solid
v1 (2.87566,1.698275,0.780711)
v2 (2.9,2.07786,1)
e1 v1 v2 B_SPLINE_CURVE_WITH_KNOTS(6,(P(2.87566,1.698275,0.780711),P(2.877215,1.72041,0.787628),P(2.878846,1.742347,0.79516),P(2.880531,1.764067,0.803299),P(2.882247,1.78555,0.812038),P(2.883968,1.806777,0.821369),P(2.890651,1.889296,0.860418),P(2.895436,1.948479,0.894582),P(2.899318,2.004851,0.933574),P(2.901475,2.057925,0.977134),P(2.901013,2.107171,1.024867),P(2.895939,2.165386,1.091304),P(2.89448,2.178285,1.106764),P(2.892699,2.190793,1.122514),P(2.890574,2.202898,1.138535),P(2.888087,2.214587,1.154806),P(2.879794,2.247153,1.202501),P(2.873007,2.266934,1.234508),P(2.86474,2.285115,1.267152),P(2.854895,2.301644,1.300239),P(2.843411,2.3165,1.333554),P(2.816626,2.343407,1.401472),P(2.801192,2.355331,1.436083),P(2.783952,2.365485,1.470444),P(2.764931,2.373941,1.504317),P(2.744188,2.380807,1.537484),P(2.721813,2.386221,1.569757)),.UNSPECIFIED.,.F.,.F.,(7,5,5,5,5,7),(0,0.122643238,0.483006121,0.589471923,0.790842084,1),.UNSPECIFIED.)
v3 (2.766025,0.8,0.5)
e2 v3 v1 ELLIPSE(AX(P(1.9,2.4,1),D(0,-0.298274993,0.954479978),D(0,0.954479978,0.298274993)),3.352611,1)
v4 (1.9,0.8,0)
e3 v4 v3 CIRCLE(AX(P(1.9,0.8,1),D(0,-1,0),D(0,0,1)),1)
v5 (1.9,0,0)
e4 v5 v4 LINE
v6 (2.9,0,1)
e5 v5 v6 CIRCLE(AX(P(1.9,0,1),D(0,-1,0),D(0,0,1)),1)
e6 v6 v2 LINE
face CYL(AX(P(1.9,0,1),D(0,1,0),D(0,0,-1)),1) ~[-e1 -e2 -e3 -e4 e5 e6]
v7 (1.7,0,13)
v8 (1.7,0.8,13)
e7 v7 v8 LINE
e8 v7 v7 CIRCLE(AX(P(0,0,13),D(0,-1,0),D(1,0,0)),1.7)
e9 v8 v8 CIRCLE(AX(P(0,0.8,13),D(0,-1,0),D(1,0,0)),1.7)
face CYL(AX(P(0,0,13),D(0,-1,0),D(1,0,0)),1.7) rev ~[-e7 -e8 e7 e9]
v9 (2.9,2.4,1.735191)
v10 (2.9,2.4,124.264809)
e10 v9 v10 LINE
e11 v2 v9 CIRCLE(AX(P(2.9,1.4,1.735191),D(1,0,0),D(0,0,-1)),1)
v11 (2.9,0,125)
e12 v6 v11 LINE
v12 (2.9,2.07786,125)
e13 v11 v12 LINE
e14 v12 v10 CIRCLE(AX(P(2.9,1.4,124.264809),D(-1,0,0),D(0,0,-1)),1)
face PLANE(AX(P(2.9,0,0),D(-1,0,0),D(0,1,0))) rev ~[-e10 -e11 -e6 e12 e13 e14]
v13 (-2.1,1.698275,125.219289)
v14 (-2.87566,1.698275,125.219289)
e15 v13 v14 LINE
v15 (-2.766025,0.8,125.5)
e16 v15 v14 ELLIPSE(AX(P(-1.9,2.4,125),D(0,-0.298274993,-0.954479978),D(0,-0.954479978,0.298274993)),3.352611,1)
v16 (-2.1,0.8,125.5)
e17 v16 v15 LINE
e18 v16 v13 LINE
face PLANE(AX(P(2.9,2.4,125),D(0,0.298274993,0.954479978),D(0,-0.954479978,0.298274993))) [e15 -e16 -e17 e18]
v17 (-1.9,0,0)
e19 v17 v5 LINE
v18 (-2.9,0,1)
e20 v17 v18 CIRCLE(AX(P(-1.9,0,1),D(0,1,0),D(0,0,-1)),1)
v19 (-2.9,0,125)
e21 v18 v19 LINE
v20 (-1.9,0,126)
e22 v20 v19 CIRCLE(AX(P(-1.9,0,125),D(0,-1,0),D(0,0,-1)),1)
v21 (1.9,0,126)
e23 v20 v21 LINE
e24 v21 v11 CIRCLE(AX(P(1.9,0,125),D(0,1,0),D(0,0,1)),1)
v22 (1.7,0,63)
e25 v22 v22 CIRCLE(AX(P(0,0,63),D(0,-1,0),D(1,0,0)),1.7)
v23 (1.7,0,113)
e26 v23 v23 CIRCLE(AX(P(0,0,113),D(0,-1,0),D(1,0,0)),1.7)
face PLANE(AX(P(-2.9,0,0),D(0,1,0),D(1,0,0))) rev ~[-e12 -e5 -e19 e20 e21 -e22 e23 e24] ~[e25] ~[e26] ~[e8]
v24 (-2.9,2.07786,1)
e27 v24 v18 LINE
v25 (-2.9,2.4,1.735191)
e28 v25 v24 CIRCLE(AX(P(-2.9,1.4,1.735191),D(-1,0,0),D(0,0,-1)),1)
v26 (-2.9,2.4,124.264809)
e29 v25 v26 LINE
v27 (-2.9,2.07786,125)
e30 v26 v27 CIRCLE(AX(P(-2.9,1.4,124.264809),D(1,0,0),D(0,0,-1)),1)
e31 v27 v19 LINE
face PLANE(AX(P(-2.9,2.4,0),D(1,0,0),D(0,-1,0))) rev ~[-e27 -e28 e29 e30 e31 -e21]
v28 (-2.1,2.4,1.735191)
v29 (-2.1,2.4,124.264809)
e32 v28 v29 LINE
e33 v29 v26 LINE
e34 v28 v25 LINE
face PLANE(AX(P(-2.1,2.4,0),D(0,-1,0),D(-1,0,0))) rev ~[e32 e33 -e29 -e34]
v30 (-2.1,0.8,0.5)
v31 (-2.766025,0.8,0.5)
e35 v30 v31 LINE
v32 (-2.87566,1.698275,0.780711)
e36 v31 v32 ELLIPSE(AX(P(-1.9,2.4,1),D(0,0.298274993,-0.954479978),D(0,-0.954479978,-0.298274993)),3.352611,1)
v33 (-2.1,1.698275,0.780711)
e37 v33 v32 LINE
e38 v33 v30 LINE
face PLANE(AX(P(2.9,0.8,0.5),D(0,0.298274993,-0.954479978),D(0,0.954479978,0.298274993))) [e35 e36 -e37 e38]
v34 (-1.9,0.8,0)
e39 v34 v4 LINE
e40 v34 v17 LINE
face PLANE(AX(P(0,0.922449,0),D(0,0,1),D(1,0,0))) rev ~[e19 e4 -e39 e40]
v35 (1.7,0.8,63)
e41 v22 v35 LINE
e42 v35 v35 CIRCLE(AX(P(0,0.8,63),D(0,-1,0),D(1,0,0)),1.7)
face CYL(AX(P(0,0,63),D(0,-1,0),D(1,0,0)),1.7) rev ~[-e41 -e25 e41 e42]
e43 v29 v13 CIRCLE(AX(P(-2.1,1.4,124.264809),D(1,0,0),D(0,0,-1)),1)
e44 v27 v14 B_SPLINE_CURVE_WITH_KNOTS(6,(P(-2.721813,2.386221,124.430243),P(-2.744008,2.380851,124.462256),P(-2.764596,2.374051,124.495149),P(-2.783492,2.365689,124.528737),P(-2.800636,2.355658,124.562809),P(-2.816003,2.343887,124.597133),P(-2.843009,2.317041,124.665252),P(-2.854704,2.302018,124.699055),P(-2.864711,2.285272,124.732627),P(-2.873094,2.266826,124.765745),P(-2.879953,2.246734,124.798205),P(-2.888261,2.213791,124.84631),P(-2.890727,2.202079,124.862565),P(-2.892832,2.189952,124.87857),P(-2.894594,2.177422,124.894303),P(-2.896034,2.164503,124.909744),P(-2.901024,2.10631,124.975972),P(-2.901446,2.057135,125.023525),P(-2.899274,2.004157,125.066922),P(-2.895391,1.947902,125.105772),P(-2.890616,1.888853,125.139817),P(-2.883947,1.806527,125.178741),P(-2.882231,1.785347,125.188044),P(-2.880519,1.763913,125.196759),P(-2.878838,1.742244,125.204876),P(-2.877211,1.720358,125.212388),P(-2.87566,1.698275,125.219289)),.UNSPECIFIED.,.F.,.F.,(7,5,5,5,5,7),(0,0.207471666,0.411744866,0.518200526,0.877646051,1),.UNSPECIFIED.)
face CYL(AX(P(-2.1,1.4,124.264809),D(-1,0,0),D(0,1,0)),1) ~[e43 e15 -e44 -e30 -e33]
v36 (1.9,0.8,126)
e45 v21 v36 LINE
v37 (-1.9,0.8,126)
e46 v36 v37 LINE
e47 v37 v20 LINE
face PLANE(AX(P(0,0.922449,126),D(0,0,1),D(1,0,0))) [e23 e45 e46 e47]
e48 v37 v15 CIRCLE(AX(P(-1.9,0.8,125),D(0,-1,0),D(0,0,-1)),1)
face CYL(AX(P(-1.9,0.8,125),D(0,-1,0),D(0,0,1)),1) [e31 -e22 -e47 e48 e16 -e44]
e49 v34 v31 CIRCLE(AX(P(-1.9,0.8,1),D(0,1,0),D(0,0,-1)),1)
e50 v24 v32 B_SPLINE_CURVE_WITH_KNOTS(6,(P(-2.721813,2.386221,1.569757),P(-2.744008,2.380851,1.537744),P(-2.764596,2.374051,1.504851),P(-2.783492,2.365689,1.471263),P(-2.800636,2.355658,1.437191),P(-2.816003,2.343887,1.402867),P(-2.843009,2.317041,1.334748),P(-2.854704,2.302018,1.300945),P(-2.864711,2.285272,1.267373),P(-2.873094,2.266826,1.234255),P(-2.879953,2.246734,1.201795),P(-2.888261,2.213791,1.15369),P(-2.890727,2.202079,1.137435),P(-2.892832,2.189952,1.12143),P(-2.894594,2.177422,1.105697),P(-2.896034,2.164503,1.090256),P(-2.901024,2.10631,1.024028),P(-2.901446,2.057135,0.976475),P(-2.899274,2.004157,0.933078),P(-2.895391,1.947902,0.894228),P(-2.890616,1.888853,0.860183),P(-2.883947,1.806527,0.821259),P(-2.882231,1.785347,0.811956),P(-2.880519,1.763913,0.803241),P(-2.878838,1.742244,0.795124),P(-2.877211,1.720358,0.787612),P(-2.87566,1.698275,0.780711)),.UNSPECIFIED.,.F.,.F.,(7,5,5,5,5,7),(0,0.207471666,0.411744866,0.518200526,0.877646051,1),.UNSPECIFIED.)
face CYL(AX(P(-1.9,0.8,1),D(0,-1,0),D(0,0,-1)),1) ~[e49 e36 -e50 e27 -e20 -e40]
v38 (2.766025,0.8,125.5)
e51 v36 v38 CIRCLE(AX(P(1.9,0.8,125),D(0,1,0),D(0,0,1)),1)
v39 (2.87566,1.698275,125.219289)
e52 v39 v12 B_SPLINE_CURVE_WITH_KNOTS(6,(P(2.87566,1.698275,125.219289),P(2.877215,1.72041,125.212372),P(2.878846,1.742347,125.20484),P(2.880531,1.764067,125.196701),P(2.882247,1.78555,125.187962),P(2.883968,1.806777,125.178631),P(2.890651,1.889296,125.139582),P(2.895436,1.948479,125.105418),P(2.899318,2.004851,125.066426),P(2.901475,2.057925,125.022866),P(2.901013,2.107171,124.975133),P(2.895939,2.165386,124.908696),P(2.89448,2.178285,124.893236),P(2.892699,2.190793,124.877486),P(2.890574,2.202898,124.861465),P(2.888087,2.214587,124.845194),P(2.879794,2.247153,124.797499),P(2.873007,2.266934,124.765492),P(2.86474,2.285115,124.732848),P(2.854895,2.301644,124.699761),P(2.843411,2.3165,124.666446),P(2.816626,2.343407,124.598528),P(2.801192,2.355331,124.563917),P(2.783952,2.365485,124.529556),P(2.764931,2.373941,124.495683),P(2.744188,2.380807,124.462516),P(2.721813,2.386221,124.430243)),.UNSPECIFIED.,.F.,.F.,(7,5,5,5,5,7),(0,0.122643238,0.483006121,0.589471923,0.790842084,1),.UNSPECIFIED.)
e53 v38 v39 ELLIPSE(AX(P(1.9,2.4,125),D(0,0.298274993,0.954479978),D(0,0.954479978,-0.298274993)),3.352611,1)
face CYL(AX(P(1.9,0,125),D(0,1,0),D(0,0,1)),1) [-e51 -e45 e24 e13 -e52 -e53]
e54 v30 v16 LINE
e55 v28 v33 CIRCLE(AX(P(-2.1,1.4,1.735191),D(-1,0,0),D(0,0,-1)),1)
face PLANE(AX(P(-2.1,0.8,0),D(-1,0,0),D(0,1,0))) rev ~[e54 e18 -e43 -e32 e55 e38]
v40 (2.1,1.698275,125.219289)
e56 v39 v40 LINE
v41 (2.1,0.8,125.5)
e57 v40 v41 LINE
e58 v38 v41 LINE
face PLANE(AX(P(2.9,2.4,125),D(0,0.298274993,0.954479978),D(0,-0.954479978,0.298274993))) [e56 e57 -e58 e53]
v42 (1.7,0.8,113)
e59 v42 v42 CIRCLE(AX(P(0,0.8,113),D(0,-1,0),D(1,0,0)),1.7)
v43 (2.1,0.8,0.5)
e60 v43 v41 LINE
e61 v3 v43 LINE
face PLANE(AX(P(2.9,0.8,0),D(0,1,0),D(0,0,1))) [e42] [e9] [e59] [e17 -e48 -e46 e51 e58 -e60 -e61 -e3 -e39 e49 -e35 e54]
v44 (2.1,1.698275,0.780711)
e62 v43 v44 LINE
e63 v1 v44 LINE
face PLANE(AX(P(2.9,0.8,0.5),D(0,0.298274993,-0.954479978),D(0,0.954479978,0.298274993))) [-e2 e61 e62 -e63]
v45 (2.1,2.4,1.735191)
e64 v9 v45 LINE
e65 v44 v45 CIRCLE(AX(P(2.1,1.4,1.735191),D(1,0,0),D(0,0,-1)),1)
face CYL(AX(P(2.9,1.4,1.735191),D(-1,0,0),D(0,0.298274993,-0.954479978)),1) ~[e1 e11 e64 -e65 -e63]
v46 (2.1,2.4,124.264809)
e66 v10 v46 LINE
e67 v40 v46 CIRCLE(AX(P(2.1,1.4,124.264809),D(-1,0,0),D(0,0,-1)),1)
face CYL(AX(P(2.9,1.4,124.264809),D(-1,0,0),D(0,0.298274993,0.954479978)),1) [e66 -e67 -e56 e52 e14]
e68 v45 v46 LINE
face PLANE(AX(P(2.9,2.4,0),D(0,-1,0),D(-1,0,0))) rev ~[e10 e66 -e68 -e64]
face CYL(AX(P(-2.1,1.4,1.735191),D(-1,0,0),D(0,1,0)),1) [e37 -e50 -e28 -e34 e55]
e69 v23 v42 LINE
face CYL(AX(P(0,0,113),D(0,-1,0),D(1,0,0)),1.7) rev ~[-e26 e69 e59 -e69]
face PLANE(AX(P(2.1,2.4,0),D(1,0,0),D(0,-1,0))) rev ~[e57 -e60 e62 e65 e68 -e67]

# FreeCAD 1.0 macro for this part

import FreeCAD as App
import Part
import Sketcher

V = App.Vector


def edges_at(feature, points):
    """Names of the edges that pass closest to the given points."""
    edges = feature.Shape.Edges
    near = lambda p: min(range(len(edges)), key=lambda i: edges[i].distToShape(Part.Vertex(*p))[0])
    return sorted({f"Edge{near(p) + 1}" for p in points})


def add_polygon(sketch, points):
    """Adds a closed chain of lines whose ends are joined by coincident constraints."""
    first, n = sketch.GeometryCount, len(points)
    for a, b in zip(points, points[1:] + points[:1]):
        sketch.addGeometry(Part.LineSegment(App.Vector(*a, 0), App.Vector(*b, 0)), False)
    for i in range(n):
        sketch.addConstraint(Sketcher.Constraint("Coincident", first + i, 2, first + (i + 1) % n, 1))

doc = App.newDocument("Part")
params = doc.addObject("Spreadsheet::Sheet", "Params")
for row, (alias, value) in enumerate([
    ("sketch1_width", "5.8 mm"),
    ("sketch1_width2", "0.8 mm"),
    ("sketch1_height", "2.4 mm"),
    ("sketch1_height2", "1.6 mm"),
    ("pad1_length", "126 mm"),
    ("sketch2_height", "1 mm"),
    ("sketch2_width", "1.6 mm"),
    ("sketch2_height2", "0.5 mm"),
    ("fillet_radius", "1 mm"),
    ("fillet2_radius", "1 mm"),
    ("sketch3_diameter", "3.4 mm"),
    ("pocket2_length", "5 mm"),
], start=1):
    params.set(f"A{row}", alias)
    params.set(f"B{row}", "=" + value)
    params.setAlias(f"B{row}", alias)

body = doc.addObject("PartDesign::Body", "Body")

# Sketch on XY plane
sketch1 = doc.addObject("Sketcher::SketchObject", "Sketch")
body.addObject(sketch1)
sketch1.AttachmentSupport = (doc.XY_Plane, [""])
sketch1.MapMode = "FlatFace"
add_polygon(sketch1, [(-2.9, 0), (2.9, 0), (2.9, 2.4), (2.1, 2.4), (2.1, 0.8), (-2.1, 0.8), (-2.1, 2.4), (-2.9, 2.4)])  # lines 0-7
sketch1.addConstraint(Sketcher.Constraint("Horizontal", 0))
sketch1.addConstraint(Sketcher.Constraint("Vertical", 1))
sketch1.addConstraint(Sketcher.Constraint("Horizontal", 2))
sketch1.addConstraint(Sketcher.Constraint("Vertical", 3))
sketch1.addConstraint(Sketcher.Constraint("Horizontal", 4))
sketch1.addConstraint(Sketcher.Constraint("Vertical", 5))
sketch1.addConstraint(Sketcher.Constraint("Horizontal", 6))
sketch1.addConstraint(Sketcher.Constraint("Vertical", 7))
sketch1.addConstraint(Sketcher.Constraint("Symmetric", 0, 2, 7, 2, -1, 1))
sketch1.addConstraint(Sketcher.Constraint("Symmetric", 2, 2, 5, 2, -2))
sketch1.addConstraint(Sketcher.Constraint("DistanceX", 0, 1, 0, 2, 5.8))
sketch1.addConstraint(Sketcher.Constraint("DistanceX", 2, 2, 2, 1, 0.8))
sketch1.addConstraint(Sketcher.Constraint("DistanceY", 1, 1, 1, 2, 2.4))
sketch1.addConstraint(Sketcher.Constraint("DistanceY", 3, 2, 3, 1, 1.6))
sketch1.setExpression("Constraints[18]", "Params.sketch1_width")
sketch1.setExpression("Constraints[19]", "Params.sketch1_width2")
sketch1.setExpression("Constraints[20]", "Params.sketch1_height")
sketch1.setExpression("Constraints[21]", "Params.sketch1_height2")
pad1 = doc.addObject("PartDesign::Pad", "Pad")
body.addObject(pad1)
pad1.Profile = sketch1
pad1.setExpression("Length", "Params.pad1_length")

# Sketch on YZ plane
sketch2 = doc.addObject("Sketcher::SketchObject", "Sketch001")
body.addObject(sketch2)
sketch2.AttachmentSupport = (doc.YZ_Plane, [""])
sketch2.MapMode = "FlatFace"
sketch2.AttachmentOffset = App.Placement(V(0, 0, 2.9), App.Rotation())
add_polygon(sketch2, [(0.8, 0.5), (0.8, 0), (2.4, 0), (2.4, 1)])  # lines 0-3
add_polygon(sketch2, [(2.4, 126), (0.8, 126), (0.8, 125.5), (2.4, 125)])  # lines 4-7
sketch2.addConstraint(Sketcher.Constraint("Vertical", 0))
sketch2.addConstraint(Sketcher.Constraint("Horizontal", 1))
sketch2.addConstraint(Sketcher.Constraint("Vertical", 2))
sketch2.addConstraint(Sketcher.Constraint("Horizontal", 4))
sketch2.addConstraint(Sketcher.Constraint("Vertical", 5))
sketch2.addConstraint(Sketcher.Constraint("Vertical", 7))
sketch2.addConstraint(Sketcher.Constraint("PointOnObject", 0, 2, -1))
sketch2.addConstraint(Sketcher.Constraint("Vertical", 3, 2, 4, 2))
sketch2.addConstraint(Sketcher.Constraint("Vertical", 2, 2, 6, 2))
sketch2.addConstraint(Sketcher.Constraint("Equal", 0, 5))
sketch2.addConstraint(Sketcher.Constraint("Equal", 2, 7))
sketch2.addConstraint(Sketcher.Constraint("DistanceY", 2, 1, 2, 2, 1.0))
sketch2.addConstraint(Sketcher.Constraint("DistanceX", 1, 1, 1, 2, 1.6))
sketch2.addConstraint(Sketcher.Constraint("DistanceY", 0, 2, 0, 1, 0.5))
sketch2.addConstraint(Sketcher.Constraint("DistanceY", -1, 1, 4, 2, 126.0))
sketch2.addConstraint(Sketcher.Constraint("DistanceX", -1, 1, 0, 2, 0.8))
sketch2.setExpression("Constraints[19]", "Params.sketch2_height")
sketch2.setExpression("Constraints[20]", "Params.sketch2_width")
sketch2.setExpression("Constraints[21]", "Params.sketch2_height2")
pocket1 = doc.addObject("PartDesign::Pocket", "Pocket")
body.addObject(pocket1)
pocket1.Profile = sketch2
pocket1.Type = "ThroughAll"
doc.recompute()

fillet = doc.addObject("PartDesign::Fillet", "Fillet")
body.addObject(fillet)
fillet.Base = (pocket1, edges_at(pocket1, [
    (2.9, 0.4, 126),
    (-2.9, 0.4, 126),
    (2.9, 0.4, 0),
    (-2.9, 0.4, 0),
]))
fillet.setExpression("Radius", "Params.fillet_radius")
doc.recompute()

fillet2 = doc.addObject("PartDesign::Fillet", "Fillet001")
body.addObject(fillet2)
fillet2.Base = (fillet, edges_at(fillet, [
    (2.5, 2.4, 1),
    (-2.5, 2.4, 1),
    (2.5, 2.4, 125),
    (-2.5, 2.4, 125),
]))
fillet2.setExpression("Radius", "Params.fillet2_radius")

# Sketch on XZ plane
sketch3 = doc.addObject("Sketcher::SketchObject", "Sketch002")
body.addObject(sketch3)
sketch3.AttachmentSupport = (doc.XZ_Plane, [""])
sketch3.MapMode = "FlatFace"
sketch3.addGeometry(Part.Circle(V(0, 63, 0), V(0, 0, 1), 1.7), False)
sketch3.addGeometry(Part.Circle(V(0, 113, 0), V(0, 0, 1), 1.7), False)
sketch3.addGeometry(Part.Circle(V(0, 13, 0), V(0, 0, 1), 1.7), False)
sketch3.addConstraint(Sketcher.Constraint("Equal", 0, 1))
sketch3.addConstraint(Sketcher.Constraint("Equal", 1, 2))
sketch3.addConstraint(Sketcher.Constraint("PointOnObject", 0, 3, -2))
sketch3.addConstraint(Sketcher.Constraint("PointOnObject", 1, 3, -2))
sketch3.addConstraint(Sketcher.Constraint("PointOnObject", 2, 3, -2))
sketch3.addConstraint(Sketcher.Constraint("Diameter", 0, 3.4))
sketch3.addConstraint(Sketcher.Constraint("DistanceY", -1, 1, 0, 3, 63.0))
sketch3.addConstraint(Sketcher.Constraint("DistanceY", -1, 1, 1, 3, 113.0))
sketch3.addConstraint(Sketcher.Constraint("DistanceY", -1, 1, 2, 3, 13.0))
sketch3.setExpression("Constraints[5]", "Params.sketch3_diameter")
pocket2 = doc.addObject("PartDesign::Pocket", "Pocket001")
body.addObject(pocket2)
pocket2.Profile = sketch3
pocket2.setExpression("Length", "Params.pocket2_length")

doc.recompute()
